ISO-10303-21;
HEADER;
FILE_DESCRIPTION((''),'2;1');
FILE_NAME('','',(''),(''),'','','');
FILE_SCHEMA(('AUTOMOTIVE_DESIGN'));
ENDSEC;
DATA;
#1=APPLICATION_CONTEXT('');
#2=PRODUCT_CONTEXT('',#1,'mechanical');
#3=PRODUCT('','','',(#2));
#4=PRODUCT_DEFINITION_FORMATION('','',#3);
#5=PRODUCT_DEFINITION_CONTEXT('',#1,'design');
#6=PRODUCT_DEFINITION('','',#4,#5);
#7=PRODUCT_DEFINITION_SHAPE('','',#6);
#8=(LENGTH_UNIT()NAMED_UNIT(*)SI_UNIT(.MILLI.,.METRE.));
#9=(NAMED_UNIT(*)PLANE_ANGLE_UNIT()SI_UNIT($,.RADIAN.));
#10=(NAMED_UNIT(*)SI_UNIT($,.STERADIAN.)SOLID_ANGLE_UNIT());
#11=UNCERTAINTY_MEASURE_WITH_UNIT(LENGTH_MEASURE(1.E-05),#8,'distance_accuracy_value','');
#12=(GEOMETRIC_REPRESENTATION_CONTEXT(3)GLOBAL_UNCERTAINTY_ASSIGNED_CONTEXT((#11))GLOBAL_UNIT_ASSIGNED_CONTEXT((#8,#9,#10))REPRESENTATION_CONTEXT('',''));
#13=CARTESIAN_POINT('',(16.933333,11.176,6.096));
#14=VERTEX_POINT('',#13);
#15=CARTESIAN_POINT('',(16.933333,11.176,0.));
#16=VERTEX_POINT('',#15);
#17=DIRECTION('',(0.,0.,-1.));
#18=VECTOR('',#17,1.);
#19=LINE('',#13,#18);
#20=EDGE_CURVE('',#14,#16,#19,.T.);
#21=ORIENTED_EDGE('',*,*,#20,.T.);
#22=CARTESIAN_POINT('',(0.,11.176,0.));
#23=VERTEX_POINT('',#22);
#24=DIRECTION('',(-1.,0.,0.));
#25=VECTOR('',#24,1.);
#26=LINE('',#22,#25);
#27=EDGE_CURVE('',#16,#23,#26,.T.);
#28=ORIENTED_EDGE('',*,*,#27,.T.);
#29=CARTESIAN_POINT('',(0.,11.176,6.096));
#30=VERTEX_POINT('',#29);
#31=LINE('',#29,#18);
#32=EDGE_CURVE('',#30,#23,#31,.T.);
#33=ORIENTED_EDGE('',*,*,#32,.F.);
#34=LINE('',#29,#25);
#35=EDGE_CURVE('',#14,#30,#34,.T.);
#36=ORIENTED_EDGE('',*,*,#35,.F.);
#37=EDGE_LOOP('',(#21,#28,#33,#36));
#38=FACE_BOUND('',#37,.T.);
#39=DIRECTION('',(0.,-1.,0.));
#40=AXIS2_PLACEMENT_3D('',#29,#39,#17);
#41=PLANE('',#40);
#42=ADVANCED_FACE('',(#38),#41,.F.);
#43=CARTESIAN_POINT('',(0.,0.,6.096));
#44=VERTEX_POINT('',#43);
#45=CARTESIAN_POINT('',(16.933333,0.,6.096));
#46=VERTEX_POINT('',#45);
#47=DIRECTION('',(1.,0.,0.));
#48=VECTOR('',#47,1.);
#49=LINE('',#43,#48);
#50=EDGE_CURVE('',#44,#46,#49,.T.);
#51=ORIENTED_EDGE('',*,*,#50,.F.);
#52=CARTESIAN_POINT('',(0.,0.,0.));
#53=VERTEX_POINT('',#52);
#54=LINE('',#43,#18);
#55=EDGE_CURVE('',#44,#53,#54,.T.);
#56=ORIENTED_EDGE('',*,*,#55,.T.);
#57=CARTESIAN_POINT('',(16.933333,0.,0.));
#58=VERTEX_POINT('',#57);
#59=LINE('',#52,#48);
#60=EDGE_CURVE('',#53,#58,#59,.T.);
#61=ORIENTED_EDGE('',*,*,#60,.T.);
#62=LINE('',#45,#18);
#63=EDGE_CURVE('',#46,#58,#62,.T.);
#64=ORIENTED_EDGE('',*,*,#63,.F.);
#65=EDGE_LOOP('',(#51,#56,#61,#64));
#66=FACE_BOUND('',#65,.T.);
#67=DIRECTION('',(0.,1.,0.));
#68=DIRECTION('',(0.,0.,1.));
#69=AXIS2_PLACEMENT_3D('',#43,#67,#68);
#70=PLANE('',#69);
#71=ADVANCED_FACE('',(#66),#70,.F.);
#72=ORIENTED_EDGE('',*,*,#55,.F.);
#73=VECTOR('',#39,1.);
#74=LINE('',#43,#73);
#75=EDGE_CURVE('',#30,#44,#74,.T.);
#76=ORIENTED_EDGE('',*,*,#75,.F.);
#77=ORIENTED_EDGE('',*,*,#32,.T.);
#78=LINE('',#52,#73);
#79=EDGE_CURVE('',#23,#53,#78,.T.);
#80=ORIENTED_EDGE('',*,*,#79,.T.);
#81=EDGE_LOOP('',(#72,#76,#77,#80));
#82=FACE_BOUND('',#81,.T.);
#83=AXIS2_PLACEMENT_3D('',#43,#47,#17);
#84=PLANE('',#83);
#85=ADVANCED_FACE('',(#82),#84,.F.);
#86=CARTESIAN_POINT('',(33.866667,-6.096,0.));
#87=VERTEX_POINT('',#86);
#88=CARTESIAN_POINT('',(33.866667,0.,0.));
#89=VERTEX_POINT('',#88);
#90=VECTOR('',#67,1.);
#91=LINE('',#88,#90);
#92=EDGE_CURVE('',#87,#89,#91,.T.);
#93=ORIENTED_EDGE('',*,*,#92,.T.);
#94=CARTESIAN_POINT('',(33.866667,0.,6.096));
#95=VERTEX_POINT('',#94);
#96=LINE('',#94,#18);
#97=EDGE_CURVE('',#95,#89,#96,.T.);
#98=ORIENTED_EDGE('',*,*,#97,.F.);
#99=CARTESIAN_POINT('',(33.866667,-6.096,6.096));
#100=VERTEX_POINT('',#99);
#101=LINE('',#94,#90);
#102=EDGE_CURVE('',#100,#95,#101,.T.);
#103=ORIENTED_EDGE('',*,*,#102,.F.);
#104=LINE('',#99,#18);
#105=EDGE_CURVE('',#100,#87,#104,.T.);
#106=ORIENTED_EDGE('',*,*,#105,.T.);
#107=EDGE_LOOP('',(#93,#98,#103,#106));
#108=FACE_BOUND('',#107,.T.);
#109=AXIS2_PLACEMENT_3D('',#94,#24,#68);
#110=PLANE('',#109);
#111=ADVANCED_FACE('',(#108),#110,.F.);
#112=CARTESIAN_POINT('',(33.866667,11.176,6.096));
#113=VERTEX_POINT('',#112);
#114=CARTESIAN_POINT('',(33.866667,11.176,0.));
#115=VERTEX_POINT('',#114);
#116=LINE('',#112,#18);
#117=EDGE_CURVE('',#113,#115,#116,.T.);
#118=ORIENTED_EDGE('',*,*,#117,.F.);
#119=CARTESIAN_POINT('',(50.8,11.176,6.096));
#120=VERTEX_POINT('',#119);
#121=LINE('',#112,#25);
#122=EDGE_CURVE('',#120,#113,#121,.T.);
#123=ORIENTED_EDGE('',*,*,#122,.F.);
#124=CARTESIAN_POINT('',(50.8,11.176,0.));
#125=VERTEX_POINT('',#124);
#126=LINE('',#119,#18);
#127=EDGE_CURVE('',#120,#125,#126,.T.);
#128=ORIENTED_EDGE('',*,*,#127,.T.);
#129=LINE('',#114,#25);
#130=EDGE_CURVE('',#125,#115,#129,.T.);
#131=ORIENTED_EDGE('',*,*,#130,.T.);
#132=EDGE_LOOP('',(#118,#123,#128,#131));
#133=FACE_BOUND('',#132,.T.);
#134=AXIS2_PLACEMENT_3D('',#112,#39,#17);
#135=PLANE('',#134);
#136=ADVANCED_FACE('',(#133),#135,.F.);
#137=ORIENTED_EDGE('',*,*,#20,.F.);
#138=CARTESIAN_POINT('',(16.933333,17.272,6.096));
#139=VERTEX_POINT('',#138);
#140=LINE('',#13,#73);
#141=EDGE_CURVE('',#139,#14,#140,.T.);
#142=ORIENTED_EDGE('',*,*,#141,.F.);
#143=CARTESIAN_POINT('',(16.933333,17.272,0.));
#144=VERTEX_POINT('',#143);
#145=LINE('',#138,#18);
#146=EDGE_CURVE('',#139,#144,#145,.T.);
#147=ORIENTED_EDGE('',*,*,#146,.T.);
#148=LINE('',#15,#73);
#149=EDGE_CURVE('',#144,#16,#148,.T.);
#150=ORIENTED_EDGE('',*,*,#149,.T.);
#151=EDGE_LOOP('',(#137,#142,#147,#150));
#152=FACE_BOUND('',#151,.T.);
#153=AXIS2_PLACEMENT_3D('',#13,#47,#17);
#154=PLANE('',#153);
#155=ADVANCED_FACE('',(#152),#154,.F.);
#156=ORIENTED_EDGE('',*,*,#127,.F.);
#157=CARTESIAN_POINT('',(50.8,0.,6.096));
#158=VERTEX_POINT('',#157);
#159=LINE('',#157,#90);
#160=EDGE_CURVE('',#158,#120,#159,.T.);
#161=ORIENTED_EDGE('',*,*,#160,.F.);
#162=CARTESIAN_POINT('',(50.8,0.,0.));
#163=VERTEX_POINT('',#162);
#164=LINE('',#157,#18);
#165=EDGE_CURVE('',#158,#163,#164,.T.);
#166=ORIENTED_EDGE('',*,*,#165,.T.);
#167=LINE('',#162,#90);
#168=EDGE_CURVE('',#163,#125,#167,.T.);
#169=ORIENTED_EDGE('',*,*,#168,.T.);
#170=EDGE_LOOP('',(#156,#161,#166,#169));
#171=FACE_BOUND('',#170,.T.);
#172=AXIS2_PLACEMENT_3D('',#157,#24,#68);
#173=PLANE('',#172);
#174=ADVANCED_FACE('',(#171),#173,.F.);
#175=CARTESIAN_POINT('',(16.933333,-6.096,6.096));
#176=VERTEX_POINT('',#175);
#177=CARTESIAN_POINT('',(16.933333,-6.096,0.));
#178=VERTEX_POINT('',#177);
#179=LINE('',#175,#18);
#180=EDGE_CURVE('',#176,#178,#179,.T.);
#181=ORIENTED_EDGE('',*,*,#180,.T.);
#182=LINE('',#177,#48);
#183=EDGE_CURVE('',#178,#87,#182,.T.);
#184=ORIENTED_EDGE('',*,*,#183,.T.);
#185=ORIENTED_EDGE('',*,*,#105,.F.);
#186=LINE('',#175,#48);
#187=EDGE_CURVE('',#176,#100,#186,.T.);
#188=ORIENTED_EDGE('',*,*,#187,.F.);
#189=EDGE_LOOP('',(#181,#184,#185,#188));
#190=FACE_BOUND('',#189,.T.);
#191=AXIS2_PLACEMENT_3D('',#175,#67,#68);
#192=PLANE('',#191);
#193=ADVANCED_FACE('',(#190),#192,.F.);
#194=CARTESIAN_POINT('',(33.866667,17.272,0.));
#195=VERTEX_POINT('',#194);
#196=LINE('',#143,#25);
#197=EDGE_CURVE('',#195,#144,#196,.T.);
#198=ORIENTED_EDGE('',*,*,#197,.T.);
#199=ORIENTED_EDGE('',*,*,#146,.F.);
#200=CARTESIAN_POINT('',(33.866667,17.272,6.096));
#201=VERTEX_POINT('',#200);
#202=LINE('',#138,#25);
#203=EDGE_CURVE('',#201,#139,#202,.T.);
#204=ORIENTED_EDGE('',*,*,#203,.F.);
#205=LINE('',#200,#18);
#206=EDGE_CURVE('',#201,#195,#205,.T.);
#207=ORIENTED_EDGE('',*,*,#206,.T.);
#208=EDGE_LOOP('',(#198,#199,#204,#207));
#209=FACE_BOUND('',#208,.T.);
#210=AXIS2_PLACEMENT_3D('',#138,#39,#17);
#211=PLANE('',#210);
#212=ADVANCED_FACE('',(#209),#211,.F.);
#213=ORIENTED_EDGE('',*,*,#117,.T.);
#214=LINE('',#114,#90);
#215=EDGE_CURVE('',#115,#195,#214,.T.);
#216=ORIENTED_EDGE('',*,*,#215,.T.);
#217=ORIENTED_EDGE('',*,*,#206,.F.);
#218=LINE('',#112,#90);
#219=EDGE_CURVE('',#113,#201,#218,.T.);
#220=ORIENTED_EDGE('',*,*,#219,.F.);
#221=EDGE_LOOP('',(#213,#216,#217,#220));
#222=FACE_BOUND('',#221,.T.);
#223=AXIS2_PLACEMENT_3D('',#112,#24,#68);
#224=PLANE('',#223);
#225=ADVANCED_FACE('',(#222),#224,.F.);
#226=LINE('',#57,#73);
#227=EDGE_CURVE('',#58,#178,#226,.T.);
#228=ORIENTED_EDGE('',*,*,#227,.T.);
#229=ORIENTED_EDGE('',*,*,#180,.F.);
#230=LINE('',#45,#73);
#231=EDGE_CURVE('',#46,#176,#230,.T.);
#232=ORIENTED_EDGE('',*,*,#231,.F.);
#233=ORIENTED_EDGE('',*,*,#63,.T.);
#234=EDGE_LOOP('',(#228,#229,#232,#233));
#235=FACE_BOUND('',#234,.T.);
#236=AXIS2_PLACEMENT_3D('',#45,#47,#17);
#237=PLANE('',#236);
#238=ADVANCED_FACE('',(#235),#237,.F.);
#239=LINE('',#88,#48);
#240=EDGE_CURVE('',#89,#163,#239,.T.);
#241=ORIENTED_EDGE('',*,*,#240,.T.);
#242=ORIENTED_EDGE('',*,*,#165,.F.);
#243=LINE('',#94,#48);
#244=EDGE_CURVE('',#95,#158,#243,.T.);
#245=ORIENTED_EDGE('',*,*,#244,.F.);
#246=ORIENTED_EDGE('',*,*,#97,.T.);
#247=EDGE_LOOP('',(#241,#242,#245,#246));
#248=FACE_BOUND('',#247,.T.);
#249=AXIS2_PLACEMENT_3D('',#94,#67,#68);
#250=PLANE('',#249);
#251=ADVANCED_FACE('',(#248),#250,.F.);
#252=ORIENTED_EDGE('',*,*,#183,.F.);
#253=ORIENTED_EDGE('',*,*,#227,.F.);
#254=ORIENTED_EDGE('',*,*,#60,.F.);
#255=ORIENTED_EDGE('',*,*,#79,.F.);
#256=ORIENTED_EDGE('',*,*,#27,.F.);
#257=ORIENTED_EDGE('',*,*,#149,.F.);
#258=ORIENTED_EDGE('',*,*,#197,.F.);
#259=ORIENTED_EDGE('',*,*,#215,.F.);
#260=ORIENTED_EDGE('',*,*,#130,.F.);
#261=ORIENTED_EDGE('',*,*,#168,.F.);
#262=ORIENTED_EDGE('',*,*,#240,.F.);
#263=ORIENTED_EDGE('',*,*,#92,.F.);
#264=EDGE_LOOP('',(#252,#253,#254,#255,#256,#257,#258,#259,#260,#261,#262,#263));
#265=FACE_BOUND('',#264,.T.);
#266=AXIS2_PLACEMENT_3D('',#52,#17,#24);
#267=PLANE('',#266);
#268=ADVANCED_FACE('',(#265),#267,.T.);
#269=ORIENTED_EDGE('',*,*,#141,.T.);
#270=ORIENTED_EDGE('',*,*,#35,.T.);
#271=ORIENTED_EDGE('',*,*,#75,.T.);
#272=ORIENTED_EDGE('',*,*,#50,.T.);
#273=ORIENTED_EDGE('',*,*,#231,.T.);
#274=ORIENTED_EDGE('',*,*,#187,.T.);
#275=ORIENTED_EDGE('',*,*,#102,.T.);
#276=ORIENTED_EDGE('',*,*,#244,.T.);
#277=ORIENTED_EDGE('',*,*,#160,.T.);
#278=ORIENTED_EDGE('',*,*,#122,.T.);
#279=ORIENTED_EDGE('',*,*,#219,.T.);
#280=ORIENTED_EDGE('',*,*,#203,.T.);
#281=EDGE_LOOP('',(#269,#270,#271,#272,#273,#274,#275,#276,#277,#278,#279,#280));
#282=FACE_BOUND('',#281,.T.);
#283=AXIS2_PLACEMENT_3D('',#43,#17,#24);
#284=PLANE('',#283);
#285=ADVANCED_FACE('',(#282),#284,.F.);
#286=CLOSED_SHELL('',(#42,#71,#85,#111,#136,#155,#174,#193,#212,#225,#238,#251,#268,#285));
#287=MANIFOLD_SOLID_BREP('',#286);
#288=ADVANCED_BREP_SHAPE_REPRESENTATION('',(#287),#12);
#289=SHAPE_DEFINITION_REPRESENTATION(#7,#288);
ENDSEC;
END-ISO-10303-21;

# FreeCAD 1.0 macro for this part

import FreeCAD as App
import Part
import Sketcher

V = App.Vector
Q = App.Units.Quantity

doc = App.newDocument("Part")
body = doc.addObject("PartDesign::Body", "Body")

sketch1 = doc.addObject("Sketcher::SketchObject", "Sketch")
body.addObject(sketch1)
sketch1.AttachmentSupport = (doc.XY_Plane, [""])
sketch1.MapMode = "FlatFace"
sketch1.addGeometry([
    Part.LineSegment(V(51, 11, 0), V(34, 11, 0)),
    Part.LineSegment(V(34, 11, 0), V(34, 17, 0)),
    Part.LineSegment(V(34, 17, 0), V(17, 17, 0)),
    Part.LineSegment(V(17, 17, 0), V(17, 11, 0)),
    Part.LineSegment(V(17, 11, 0), V(0, 11, 0)),
    Part.LineSegment(V(0, 11, 0), V(0, 0, 0)),
    Part.LineSegment(V(0, 0, 0), V(17, 0, 0)),
    Part.LineSegment(V(17, 0, 0), V(17, -6, 0)),
    Part.LineSegment(V(17, -6, 0), V(34, -6, 0)),
    Part.LineSegment(V(34, -6, 0), V(34, 0, 0)),
    Part.LineSegment(V(34, 0, 0), V(51, 0, 0)),
    Part.LineSegment(V(51, 0, 0), V(51, 11, 0)),
], False)
sketch1.addConstraint([
    Sketcher.Constraint("Coincident", 0, 2, 1, 1),
    Sketcher.Constraint("Coincident", 1, 2, 2, 1),
    Sketcher.Constraint("Coincident", 2, 2, 3, 1),
    Sketcher.Constraint("Coincident", 3, 2, 4, 1),
    Sketcher.Constraint("Coincident", 4, 2, 5, 1),
    Sketcher.Constraint("Coincident", 5, 2, 6, 1),
    Sketcher.Constraint("Coincident", 6, 2, 7, 1),
    Sketcher.Constraint("Coincident", 7, 2, 8, 1),
    Sketcher.Constraint("Coincident", 8, 2, 9, 1),
    Sketcher.Constraint("Coincident", 9, 2, 10, 1),
    Sketcher.Constraint("Coincident", 10, 2, 11, 1),
    Sketcher.Constraint("Coincident", 11, 2, 0, 1),
    Sketcher.Constraint("Horizontal", 0),
    Sketcher.Constraint("Vertical", 1),
    Sketcher.Constraint("Horizontal", 2),
    Sketcher.Constraint("Vertical", 3),
    Sketcher.Constraint("Horizontal", 4),
    Sketcher.Constraint("Vertical", 5),
    Sketcher.Constraint("Horizontal", 6),
    Sketcher.Constraint("Vertical", 7),
    Sketcher.Constraint("Horizontal", 8),
    Sketcher.Constraint("Vertical", 9),
    Sketcher.Constraint("Horizontal", 10),
    Sketcher.Constraint("Vertical", 11),
    Sketcher.Constraint("Coincident", 5, 2, -1, 1),
    Sketcher.Constraint("PointOnObject", 9, 2, -1),
    Sketcher.Constraint("Horizontal", 0, 2, 3, 2),
    Sketcher.Constraint("Vertical", 3, 2, 6, 2),
    Sketcher.Constraint("Vertical", 1, 2, 8, 2),
    Sketcher.Constraint("Equal", 0, 2),
    Sketcher.Constraint("Equal", 2, 4),
    Sketcher.Constraint("Equal", 3, 7),
    Sketcher.Constraint("DistanceX", -1, 1, 10, 2, Q("2 in")),
    Sketcher.Constraint("DistanceY", 1, 1, 1, 2, Q("0.24 in")),
    Sketcher.Constraint("DistanceY", 5, 2, 5, 1, Q("0.44 in")),
])
pad1 = doc.addObject("PartDesign::Pad", "Pad")
body.addObject(pad1)
pad1.Profile = sketch1
pad1.Length = Q("0.24 in")

doc.recompute()
